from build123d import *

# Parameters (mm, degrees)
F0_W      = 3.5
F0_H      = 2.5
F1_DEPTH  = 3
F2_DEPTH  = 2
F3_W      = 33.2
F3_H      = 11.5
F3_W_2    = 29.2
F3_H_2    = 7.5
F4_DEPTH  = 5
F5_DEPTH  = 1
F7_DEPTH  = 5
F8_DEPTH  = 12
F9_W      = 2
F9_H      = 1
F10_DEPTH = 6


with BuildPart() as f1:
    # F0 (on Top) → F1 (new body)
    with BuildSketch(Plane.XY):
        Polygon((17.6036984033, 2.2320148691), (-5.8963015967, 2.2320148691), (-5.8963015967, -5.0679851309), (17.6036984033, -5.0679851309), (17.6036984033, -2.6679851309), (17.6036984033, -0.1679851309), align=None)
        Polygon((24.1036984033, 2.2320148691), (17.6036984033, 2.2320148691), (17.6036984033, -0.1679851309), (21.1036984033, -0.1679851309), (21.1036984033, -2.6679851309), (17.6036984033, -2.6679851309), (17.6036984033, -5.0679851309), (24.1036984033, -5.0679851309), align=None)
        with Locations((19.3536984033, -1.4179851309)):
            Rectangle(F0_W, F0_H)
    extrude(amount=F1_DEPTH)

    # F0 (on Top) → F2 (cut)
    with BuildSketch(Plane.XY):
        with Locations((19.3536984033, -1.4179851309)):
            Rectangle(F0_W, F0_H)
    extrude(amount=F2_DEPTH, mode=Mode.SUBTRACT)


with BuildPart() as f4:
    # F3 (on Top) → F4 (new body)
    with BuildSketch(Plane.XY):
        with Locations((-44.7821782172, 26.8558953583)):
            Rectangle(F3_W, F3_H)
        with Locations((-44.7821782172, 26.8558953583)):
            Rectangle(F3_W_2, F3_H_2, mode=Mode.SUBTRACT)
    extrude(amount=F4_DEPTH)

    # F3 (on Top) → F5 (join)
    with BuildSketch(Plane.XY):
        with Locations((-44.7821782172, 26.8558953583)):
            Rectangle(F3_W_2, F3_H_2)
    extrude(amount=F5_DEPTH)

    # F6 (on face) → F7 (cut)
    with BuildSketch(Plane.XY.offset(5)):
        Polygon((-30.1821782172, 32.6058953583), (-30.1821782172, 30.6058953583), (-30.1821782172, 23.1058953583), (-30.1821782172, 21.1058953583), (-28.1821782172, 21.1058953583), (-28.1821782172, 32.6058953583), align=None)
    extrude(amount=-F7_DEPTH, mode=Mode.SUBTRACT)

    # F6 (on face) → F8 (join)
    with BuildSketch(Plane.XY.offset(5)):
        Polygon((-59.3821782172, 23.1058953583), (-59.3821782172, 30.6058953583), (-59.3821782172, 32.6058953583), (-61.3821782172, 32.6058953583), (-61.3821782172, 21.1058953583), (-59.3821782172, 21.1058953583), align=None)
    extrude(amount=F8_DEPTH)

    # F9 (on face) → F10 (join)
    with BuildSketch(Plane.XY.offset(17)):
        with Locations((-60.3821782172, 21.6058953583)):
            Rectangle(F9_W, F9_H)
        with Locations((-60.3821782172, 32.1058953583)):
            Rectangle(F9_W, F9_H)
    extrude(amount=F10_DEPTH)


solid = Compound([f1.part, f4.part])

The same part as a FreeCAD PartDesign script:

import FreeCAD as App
import Part
import Sketcher

V = App.Vector
Q = App.Units.Quantity

doc = App.newDocument("Part")
body = doc.addObject("PartDesign::Body", "Body")

# Sketch on XY plane
sketch1 = body.newObject("Sketcher::SketchObject", "Sketch")
sketch1.AttachmentSupport = (doc.getObject("XY_Plane"), [""])
sketch1.MapMode = "FlatFace"
sketch1.addGeometry(Part.LineSegment(V(-6, 2, 0), V(-6, -5, 0)), False)
sketch1.addGeometry(Part.LineSegment(V(-6, -5, 0), V(24, -5, 0)), False)
sketch1.addGeometry(Part.LineSegment(V(24, -5, 0), V(24, 2, 0)), False)
sketch1.addGeometry(Part.LineSegment(V(24, 2, 0), V(-6, 2, 0)), False)
sketch1.addConstraint(Sketcher.Constraint("Coincident", 0, 2, 1, 1))
sketch1.addConstraint(Sketcher.Constraint("Coincident", 1, 2, 2, 1))
sketch1.addConstraint(Sketcher.Constraint("Coincident", 2, 2, 3, 1))
sketch1.addConstraint(Sketcher.Constraint("Coincident", 3, 2, 0, 1))
sketch1.addConstraint(Sketcher.Constraint("Vertical", 0))
sketch1.addConstraint(Sketcher.Constraint("Horizontal", 1))
sketch1.addConstraint(Sketcher.Constraint("Vertical", 2))
sketch1.addConstraint(Sketcher.Constraint("Horizontal", 3))
sketch1.addConstraint(Sketcher.Constraint("DistanceX", 1, 1, 1, 2, Q("30 mm")))
sketch1.addConstraint(Sketcher.Constraint("DistanceY", 0, 2, 0, 1, Q("7.3 mm")))
sketch1.addConstraint(Sketcher.Constraint("DistanceX", 0, 2, -1, 1, Q("5.896302 mm")))
sketch1.addConstraint(Sketcher.Constraint("DistanceY", 0, 2, -1, 1, Q("5.067985 mm")))
pad1 = body.newObject("PartDesign::Pad", "Pad")
pad1.Profile = sketch1
pad1.Length = 3

# Sketch on XY plane
sketch2 = body.newObject("Sketcher::SketchObject", "Sketch001")
sketch2.AttachmentSupport = (doc.getObject("XY_Plane"), [""])
sketch2.MapMode = "FlatFace"
sketch2.addGeometry(Part.LineSegment(V(17.6, -0.2, 0), V(17.6, -2.7, 0)), False)
sketch2.addGeometry(Part.LineSegment(V(17.6, -2.7, 0), V(21.1, -2.7, 0)), False)
sketch2.addGeometry(Part.LineSegment(V(21.1, -2.7, 0), V(21.1, -0.2, 0)), False)
sketch2.addGeometry(Part.LineSegment(V(21.1, -0.2, 0), V(17.6, -0.2, 0)), False)
sketch2.addConstraint(Sketcher.Constraint("Coincident", 0, 2, 1, 1))
sketch2.addConstraint(Sketcher.Constraint("Coincident", 1, 2, 2, 1))
sketch2.addConstraint(Sketcher.Constraint("Coincident", 2, 2, 3, 1))
sketch2.addConstraint(Sketcher.Constraint("Coincident", 3, 2, 0, 1))
sketch2.addConstraint(Sketcher.Constraint("Vertical", 0))
sketch2.addConstraint(Sketcher.Constraint("Horizontal", 1))
sketch2.addConstraint(Sketcher.Constraint("Vertical", 2))
sketch2.addConstraint(Sketcher.Constraint("Horizontal", 3))
sketch2.addConstraint(Sketcher.Constraint("DistanceX", 1, 1, 1, 2, Q("3.5 mm")))
sketch2.addConstraint(Sketcher.Constraint("DistanceY", 0, 2, 0, 1, Q("2.5 mm")))
sketch2.addConstraint(Sketcher.Constraint("DistanceX", -1, 1, 0, 2, Q("17.603698 mm")))
sketch2.addConstraint(Sketcher.Constraint("DistanceY", 0, 2, -1, 1, Q("2.667985 mm")))
pocket1 = body.newObject("PartDesign::Pocket", "Pocket")
pocket1.Profile = sketch2
pocket1.Length = 2
pocket1.Reversed = True
body2 = doc.addObject("PartDesign::Body", "Body001")

# Sketch on XY plane
sketch3 = body2.newObject("Sketcher::SketchObject", "Sketch002")
sketch3.AttachmentSupport = (doc.getObject("XY_Plane001"), [""])
sketch3.MapMode = "FlatFace"
sketch3.addGeometry(Part.LineSegment(V(-61, 33, 0), V(-61, 21, 0)), False)
sketch3.addGeometry(Part.LineSegment(V(-61, 21, 0), V(-28, 21, 0)), False)
sketch3.addGeometry(Part.LineSegment(V(-28, 21, 0), V(-28, 33, 0)), False)
sketch3.addGeometry(Part.LineSegment(V(-28, 33, 0), V(-61, 33, 0)), False)
sketch3.addGeometry(Part.LineSegment(V(-30, 23, 0), V(-59, 23, 0)), False)
sketch3.addGeometry(Part.LineSegment(V(-59, 23, 0), V(-59, 31, 0)), False)
sketch3.addGeometry(Part.LineSegment(V(-59, 31, 0), V(-30, 31, 0)), False)
sketch3.addGeometry(Part.LineSegment(V(-30, 31, 0), V(-30, 23, 0)), False)
sketch3.addConstraint(Sketcher.Constraint("Coincident", 0, 2, 1, 1))
sketch3.addConstraint(Sketcher.Constraint("Coincident", 1, 2, 2, 1))
sketch3.addConstraint(Sketcher.Constraint("Coincident", 2, 2, 3, 1))
sketch3.addConstraint(Sketcher.Constraint("Coincident", 3, 2, 0, 1))
sketch3.addConstraint(Sketcher.Constraint("Coincident", 4, 2, 5, 1))
sketch3.addConstraint(Sketcher.Constraint("Coincident", 5, 2, 6, 1))
sketch3.addConstraint(Sketcher.Constraint("Coincident", 6, 2, 7, 1))
sketch3.addConstraint(Sketcher.Constraint("Coincident", 7, 2, 4, 1))
sketch3.addConstraint(Sketcher.Constraint("Vertical", 0))
sketch3.addConstraint(Sketcher.Constraint("Horizontal", 1))
sketch3.addConstraint(Sketcher.Constraint("Vertical", 2))
sketch3.addConstraint(Sketcher.Constraint("Horizontal", 3))
sketch3.addConstraint(Sketcher.Constraint("Horizontal", 4))
sketch3.addConstraint(Sketcher.Constraint("Vertical", 5))
sketch3.addConstraint(Sketcher.Constraint("Horizontal", 6))
sketch3.addConstraint(Sketcher.Constraint("Vertical", 7))
sketch3.addConstraint(Sketcher.Constraint("DistanceX", 1, 1, 1, 2, Q("33.2 mm")))
sketch3.addConstraint(Sketcher.Constraint("DistanceX", 4, 2, 4, 1, Q("29.2 mm")))
sketch3.addConstraint(Sketcher.Constraint("DistanceY", 0, 2, 0, 1, Q("11.5 mm")))
sketch3.addConstraint(Sketcher.Constraint("DistanceY", 5, 1, 5, 2, Q("7.5 mm")))
sketch3.addConstraint(Sketcher.Constraint("DistanceX", 0, 2, 4, 2, Q("2 mm")))
sketch3.addConstraint(Sketcher.Constraint("DistanceY", 0, 2, 4, 2, Q("2 mm")))
sketch3.addConstraint(Sketcher.Constraint("DistanceX", 0, 2, -1, 1, Q("61.382178 mm")))
sketch3.addConstraint(Sketcher.Constraint("DistanceY", -1, 1, 0, 2, Q("21.105895 mm")))
pad2 = body2.newObject("PartDesign::Pad", "Pad001")
pad2.Profile = sketch3
pad2.Length = 5

# Sketch on XY plane
sketch4 = body2.newObject("Sketcher::SketchObject", "Sketch003")
sketch4.AttachmentSupport = (doc.getObject("XY_Plane001"), [""])
sketch4.MapMode = "FlatFace"
sketch4.addGeometry(Part.LineSegment(V(-59, 31, 0), V(-59, 23, 0)), False)
sketch4.addGeometry(Part.LineSegment(V(-59, 23, 0), V(-30, 23, 0)), False)
sketch4.addGeometry(Part.LineSegment(V(-30, 23, 0), V(-30, 31, 0)), False)
sketch4.addGeometry(Part.LineSegment(V(-30, 31, 0), V(-59, 31, 0)), False)
sketch4.addConstraint(Sketcher.Constraint("Coincident", 0, 2, 1, 1))
sketch4.addConstraint(Sketcher.Constraint("Coincident", 1, 2, 2, 1))
sketch4.addConstraint(Sketcher.Constraint("Coincident", 2, 2, 3, 1))
sketch4.addConstraint(Sketcher.Constraint("Coincident", 3, 2, 0, 1))
sketch4.addConstraint(Sketcher.Constraint("Vertical", 0))
sketch4.addConstraint(Sketcher.Constraint("Horizontal", 1))
sketch4.addConstraint(Sketcher.Constraint("Vertical", 2))
sketch4.addConstraint(Sketcher.Constraint("Horizontal", 3))
sketch4.addConstraint(Sketcher.Constraint("DistanceX", 1, 1, 1, 2, Q("29.2 mm")))
sketch4.addConstraint(Sketcher.Constraint("DistanceY", 0, 2, 0, 1, Q("7.5 mm")))
sketch4.addConstraint(Sketcher.Constraint("DistanceX", 0, 2, -1, 1, Q("59.382178 mm")))
sketch4.addConstraint(Sketcher.Constraint("DistanceY", -1, 1, 0, 2, Q("23.105895 mm")))
pad3 = body2.newObject("PartDesign::Pad", "Pad002")
pad3.Profile = sketch4
pad3.Length = 1

# Sketch on XY plane
sketch5 = body2.newObject("Sketcher::SketchObject", "Sketch004")
sketch5.AttachmentSupport = (doc.getObject("XY_Plane001"), [""])
sketch5.MapMode = "FlatFace"
sketch5.AttachmentOffset = App.Placement(V(0, 0, 5), App.Rotation())
sketch5.addGeometry(Part.LineSegment(V(-30.2, 32.6, 0), V(-30.2, 21.1, 0)), False)
sketch5.addGeometry(Part.LineSegment(V(-30.2, 21.1, 0), V(-28.2, 21.1, 0)), False)
sketch5.addGeometry(Part.LineSegment(V(-28.2, 21.1, 0), V(-28.2, 32.6, 0)), False)
sketch5.addGeometry(Part.LineSegment(V(-28.2, 32.6, 0), V(-30.2, 32.6, 0)), False)
sketch5.addConstraint(Sketcher.Constraint("Coincident", 0, 2, 1, 1))
sketch5.addConstraint(Sketcher.Constraint("Coincident", 1, 2, 2, 1))
sketch5.addConstraint(Sketcher.Constraint("Coincident", 2, 2, 3, 1))
sketch5.addConstraint(Sketcher.Constraint("Coincident", 3, 2, 0, 1))
sketch5.addConstraint(Sketcher.Constraint("Vertical", 0))
sketch5.addConstraint(Sketcher.Constraint("Horizontal", 1))
sketch5.addConstraint(Sketcher.Constraint("Vertical", 2))
sketch5.addConstraint(Sketcher.Constraint("Horizontal", 3))
sketch5.addConstraint(Sketcher.Constraint("DistanceX", 1, 1, 1, 2, Q("2 mm")))
sketch5.addConstraint(Sketcher.Constraint("DistanceY", 0, 2, 0, 1, Q("11.5 mm")))
sketch5.addConstraint(Sketcher.Constraint("DistanceX", 0, 2, -1, 1, Q("30.182178 mm")))
sketch5.addConstraint(Sketcher.Constraint("DistanceY", -1, 1, 0, 2, Q("21.105895 mm")))
pocket2 = body2.newObject("PartDesign::Pocket", "Pocket001")
pocket2.Profile = sketch5
pocket2.Length = 5

# Sketch on XY plane
sketch6 = body2.newObject("Sketcher::SketchObject", "Sketch005")
sketch6.AttachmentSupport = (doc.getObject("XY_Plane001"), [""])
sketch6.MapMode = "FlatFace"
sketch6.AttachmentOffset = App.Placement(V(0, 0, 5), App.Rotation())
sketch6.addGeometry(Part.LineSegment(V(-59.4, 32.6, 0), V(-61.4, 32.6, 0)), False)
sketch6.addGeometry(Part.LineSegment(V(-61.4, 32.6, 0), V(-61.4, 21.1, 0)), False)
sketch6.addGeometry(Part.LineSegment(V(-61.4, 21.1, 0), V(-59.4, 21.1, 0)), False)
sketch6.addGeometry(Part.LineSegment(V(-59.4, 21.1, 0), V(-59.4, 32.6, 0)), False)
sketch6.addConstraint(Sketcher.Constraint("Coincident", 0, 2, 1, 1))
sketch6.addConstraint(Sketcher.Constraint("Coincident", 1, 2, 2, 1))
sketch6.addConstraint(Sketcher.Constraint("Coincident", 2, 2, 3, 1))
sketch6.addConstraint(Sketcher.Constraint("Coincident", 3, 2, 0, 1))
sketch6.addConstraint(Sketcher.Constraint("Horizontal", 0))
sketch6.addConstraint(Sketcher.Constraint("Vertical", 1))
sketch6.addConstraint(Sketcher.Constraint("Horizontal", 2))
sketch6.addConstraint(Sketcher.Constraint("Vertical", 3))
sketch6.addConstraint(Sketcher.Constraint("DistanceX", 0, 2, 0, 1, Q("2 mm")))
sketch6.addConstraint(Sketcher.Constraint("DistanceY", 1, 2, 1, 1, Q("11.5 mm")))
sketch6.addConstraint(Sketcher.Constraint("DistanceX", 0, 2, -1, 1, Q("61.382178 mm")))
sketch6.addConstraint(Sketcher.Constraint("DistanceY", -1, 1, 0, 2, Q("32.605895 mm")))
pad4 = body2.newObject("PartDesign::Pad", "Pad003")
pad4.Profile = sketch6
pad4.Length = 12

# Sketch on XY plane
sketch7 = body2.newObject("Sketcher::SketchObject", "Sketch006")
sketch7.AttachmentSupport = (doc.getObject("XY_Plane001"), [""])
sketch7.MapMode = "FlatFace"
sketch7.AttachmentOffset = App.Placement(V(0, 0, 17), App.Rotation())
sketch7.addGeometry(Part.LineSegment(V(-61.4, 22.1, 0), V(-61.4, 21.1, 0)), False)
sketch7.addGeometry(Part.LineSegment(V(-61.4, 21.1, 0), V(-59.4, 21.1, 0)), False)
sketch7.addGeometry(Part.LineSegment(V(-59.4, 21.1, 0), V(-59.4, 22.1, 0)), False)
sketch7.addGeometry(Part.LineSegment(V(-59.4, 22.1, 0), V(-61.4, 22.1, 0)), False)
sketch7.addGeometry(Part.LineSegment(V(-61.4, 32.6, 0), V(-61.4, 31.6, 0)), False)
sketch7.addGeometry(Part.LineSegment(V(-61.4, 31.6, 0), V(-59.4, 31.6, 0)), False)
sketch7.addGeometry(Part.LineSegment(V(-59.4, 31.6, 0), V(-59.4, 32.6, 0)), False)
sketch7.addGeometry(Part.LineSegment(V(-59.4, 32.6, 0), V(-61.4, 32.6, 0)), False)
sketch7.addConstraint(Sketcher.Constraint("Coincident", 0, 2, 1, 1))
sketch7.addConstraint(Sketcher.Constraint("Coincident", 1, 2, 2, 1))
sketch7.addConstraint(Sketcher.Constraint("Coincident", 2, 2, 3, 1))
sketch7.addConstraint(Sketcher.Constraint("Coincident", 3, 2, 0, 1))
sketch7.addConstraint(Sketcher.Constraint("Coincident", 4, 2, 5, 1))
sketch7.addConstraint(Sketcher.Constraint("Coincident", 5, 2, 6, 1))
sketch7.addConstraint(Sketcher.Constraint("Coincident", 6, 2, 7, 1))
sketch7.addConstraint(Sketcher.Constraint("Coincident", 7, 2, 4, 1))
sketch7.addConstraint(Sketcher.Constraint("Vertical", 0))
sketch7.addConstraint(Sketcher.Constraint("Horizontal", 1))
sketch7.addConstraint(Sketcher.Constraint("Vertical", 2))
sketch7.addConstraint(Sketcher.Constraint("Horizontal", 3))
sketch7.addConstraint(Sketcher.Constraint("Vertical", 4))
sketch7.addConstraint(Sketcher.Constraint("Horizontal", 5))
sketch7.addConstraint(Sketcher.Constraint("Vertical", 6))
sketch7.addConstraint(Sketcher.Constraint("Horizontal", 7))
sketch7.addConstraint(Sketcher.Constraint("Vertical", 3, 2, 4, 2))
sketch7.addConstraint(Sketcher.Constraint("Vertical", 2, 2, 5, 2))
sketch7.addConstraint(Sketcher.Constraint("Equal", 2, 4))
sketch7.addConstraint(Sketcher.Constraint("DistanceX", 1, 1, 1, 2, Q("2 mm")))
sketch7.addConstraint(Sketcher.Constraint("DistanceY", 0, 2, 0, 1, Q("1 mm")))
sketch7.addConstraint(Sketcher.Constraint("DistanceY", 3, 2, 4, 2, Q("9.5 mm")))
sketch7.addConstraint(Sketcher.Constraint("DistanceX", 0, 2, -1, 1, Q("61.382178 mm")))
sketch7.addConstraint(Sketcher.Constraint("DistanceY", -1, 1, 0, 2, Q("21.105895 mm")))
pad5 = body2.newObject("PartDesign::Pad", "Pad004")
pad5.Profile = sketch7
pad5.Length = 6

doc.recompute()
